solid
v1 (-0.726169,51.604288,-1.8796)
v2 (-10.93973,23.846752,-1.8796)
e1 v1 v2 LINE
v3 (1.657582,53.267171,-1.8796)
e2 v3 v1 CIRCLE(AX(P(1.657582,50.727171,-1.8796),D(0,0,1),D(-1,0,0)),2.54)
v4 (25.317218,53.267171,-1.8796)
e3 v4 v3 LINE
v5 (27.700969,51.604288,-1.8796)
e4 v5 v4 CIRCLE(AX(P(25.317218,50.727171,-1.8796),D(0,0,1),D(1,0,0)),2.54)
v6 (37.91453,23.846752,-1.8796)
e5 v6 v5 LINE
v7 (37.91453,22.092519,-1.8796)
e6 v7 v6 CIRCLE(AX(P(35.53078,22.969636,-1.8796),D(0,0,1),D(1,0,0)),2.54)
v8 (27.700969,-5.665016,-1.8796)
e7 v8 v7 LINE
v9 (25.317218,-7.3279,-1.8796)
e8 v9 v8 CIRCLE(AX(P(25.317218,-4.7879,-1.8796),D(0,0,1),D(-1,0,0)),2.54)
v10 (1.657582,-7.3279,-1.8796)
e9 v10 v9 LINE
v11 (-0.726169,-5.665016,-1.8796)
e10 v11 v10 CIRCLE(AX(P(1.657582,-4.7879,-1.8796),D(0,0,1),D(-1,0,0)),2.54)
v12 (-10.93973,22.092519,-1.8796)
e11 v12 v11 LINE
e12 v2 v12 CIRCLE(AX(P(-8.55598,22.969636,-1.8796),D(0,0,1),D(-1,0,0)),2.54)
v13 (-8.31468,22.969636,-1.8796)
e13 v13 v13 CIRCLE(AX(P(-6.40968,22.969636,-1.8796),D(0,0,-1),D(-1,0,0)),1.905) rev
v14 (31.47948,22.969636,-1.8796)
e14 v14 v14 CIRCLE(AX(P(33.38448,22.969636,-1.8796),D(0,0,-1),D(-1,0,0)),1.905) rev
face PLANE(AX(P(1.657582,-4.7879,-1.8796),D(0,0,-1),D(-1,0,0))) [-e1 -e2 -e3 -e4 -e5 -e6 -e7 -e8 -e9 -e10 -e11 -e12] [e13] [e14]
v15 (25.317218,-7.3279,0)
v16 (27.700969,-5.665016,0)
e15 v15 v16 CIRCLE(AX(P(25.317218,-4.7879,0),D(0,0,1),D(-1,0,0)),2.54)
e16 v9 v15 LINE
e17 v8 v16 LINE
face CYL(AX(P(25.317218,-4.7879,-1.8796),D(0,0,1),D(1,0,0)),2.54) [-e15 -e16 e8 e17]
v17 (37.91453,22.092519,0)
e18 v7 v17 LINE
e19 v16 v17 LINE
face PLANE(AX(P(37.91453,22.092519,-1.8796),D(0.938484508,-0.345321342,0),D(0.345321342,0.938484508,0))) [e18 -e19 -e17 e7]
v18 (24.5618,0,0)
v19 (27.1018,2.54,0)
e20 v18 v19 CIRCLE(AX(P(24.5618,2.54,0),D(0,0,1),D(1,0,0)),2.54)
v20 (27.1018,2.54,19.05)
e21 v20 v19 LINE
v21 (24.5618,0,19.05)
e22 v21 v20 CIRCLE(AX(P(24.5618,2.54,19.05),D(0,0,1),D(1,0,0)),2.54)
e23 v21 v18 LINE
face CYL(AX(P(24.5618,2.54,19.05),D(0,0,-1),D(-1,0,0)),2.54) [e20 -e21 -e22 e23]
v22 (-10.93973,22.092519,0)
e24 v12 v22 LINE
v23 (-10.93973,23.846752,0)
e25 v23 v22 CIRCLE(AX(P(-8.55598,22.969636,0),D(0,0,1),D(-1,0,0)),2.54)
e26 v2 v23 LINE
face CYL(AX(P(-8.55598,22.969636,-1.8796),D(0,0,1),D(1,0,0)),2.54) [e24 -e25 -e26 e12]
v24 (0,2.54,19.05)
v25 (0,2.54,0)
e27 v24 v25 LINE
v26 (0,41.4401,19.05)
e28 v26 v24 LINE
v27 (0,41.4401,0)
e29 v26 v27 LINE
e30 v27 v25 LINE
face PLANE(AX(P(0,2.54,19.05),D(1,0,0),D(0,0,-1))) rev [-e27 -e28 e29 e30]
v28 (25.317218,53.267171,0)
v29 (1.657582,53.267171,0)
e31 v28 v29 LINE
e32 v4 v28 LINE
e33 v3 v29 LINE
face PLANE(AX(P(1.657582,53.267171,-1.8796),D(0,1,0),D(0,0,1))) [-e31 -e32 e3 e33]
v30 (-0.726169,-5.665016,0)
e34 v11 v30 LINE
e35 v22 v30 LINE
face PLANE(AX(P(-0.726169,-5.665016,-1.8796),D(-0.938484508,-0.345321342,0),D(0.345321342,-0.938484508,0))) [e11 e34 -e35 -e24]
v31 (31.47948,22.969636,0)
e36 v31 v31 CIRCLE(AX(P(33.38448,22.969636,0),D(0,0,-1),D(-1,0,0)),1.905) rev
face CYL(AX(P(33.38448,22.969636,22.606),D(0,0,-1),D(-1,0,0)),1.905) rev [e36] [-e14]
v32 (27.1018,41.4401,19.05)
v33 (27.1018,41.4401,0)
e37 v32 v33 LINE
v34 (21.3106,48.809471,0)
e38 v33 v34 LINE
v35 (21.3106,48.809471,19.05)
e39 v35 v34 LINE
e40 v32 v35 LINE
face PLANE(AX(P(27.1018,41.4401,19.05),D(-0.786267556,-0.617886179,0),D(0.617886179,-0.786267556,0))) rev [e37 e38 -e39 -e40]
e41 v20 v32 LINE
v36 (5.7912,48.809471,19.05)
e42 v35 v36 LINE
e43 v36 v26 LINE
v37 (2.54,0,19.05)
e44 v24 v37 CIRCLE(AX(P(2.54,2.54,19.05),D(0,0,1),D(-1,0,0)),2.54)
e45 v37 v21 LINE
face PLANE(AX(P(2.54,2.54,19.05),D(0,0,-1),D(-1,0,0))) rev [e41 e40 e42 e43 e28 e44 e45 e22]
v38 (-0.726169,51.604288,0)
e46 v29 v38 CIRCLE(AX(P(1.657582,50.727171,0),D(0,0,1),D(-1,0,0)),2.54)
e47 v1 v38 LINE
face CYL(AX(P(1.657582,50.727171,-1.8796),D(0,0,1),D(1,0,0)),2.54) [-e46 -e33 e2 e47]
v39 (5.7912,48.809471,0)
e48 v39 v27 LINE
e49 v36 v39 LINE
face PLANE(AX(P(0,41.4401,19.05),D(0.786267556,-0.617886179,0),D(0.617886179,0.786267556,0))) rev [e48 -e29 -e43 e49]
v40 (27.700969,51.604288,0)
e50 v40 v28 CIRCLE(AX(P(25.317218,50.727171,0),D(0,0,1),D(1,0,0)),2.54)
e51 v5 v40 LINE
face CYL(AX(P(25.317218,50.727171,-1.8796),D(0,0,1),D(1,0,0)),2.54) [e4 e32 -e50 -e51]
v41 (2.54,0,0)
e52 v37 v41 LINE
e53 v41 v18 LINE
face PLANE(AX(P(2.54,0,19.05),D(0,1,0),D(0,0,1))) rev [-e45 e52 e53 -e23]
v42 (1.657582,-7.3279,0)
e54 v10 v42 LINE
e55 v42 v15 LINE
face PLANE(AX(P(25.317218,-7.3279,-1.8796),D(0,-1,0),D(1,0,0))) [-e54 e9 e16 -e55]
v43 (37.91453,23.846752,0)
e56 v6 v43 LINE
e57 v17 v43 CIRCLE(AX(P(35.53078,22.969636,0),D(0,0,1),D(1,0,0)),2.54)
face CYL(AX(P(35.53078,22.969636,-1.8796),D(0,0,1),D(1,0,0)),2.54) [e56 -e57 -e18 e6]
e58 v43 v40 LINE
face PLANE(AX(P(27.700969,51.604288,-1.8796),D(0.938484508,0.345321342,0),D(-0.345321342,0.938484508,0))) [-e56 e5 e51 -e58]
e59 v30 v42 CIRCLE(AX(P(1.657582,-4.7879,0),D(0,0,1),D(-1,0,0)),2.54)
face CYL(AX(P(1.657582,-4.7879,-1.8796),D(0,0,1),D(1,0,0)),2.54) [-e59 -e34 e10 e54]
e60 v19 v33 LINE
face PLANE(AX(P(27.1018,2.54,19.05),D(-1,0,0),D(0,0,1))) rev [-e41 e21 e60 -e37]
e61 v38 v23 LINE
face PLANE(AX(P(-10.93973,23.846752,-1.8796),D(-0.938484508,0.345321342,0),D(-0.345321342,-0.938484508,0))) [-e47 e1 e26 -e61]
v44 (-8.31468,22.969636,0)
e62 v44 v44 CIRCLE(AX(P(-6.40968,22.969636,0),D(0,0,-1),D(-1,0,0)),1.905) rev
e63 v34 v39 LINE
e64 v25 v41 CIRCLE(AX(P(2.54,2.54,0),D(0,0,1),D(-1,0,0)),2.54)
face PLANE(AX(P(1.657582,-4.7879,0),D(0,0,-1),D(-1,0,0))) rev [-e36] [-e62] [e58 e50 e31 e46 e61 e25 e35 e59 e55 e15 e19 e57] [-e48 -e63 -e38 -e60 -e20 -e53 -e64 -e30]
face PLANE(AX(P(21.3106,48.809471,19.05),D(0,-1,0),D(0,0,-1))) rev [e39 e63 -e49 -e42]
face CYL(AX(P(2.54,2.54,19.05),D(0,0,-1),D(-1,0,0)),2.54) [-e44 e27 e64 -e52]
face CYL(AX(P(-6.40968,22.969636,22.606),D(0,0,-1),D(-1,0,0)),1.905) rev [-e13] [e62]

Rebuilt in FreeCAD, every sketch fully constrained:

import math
import FreeCAD as App
import Part
import Sketcher
from FreeCAD import Vector
Q = App.Units.Quantity

doc = App.newDocument("Part")
params = doc.addObject("Spreadsheet::Sheet", "Params")
for row, (alias, value) in enumerate([
    ("sketch1_radius", "0.1 in"),
    ("sketch1_width", "0.867 in"),
    ("sketch1_width2", "0.611 in"),
    ("sketch1_length", "0.369 in"),
    ("pad1_length", "0.75 in"),
    ("sketch2_radius", "0.1 in"),
    ("pad2_length", "0.074 in"),
    ("sketch3_diameter", "0.15 in"),
], start=1):
    params.set(f"A{row}", alias)
    params.set(f"B{row}", "=" + value)
    params.setAlias(f"B{row}", alias)

body = doc.addObject("PartDesign::Body", "Body")

# Sketch on XY plane
sketch1 = body.newObject("Sketcher::SketchObject", "Sketch")
sketch1.AttachmentSupport = (doc.getObject("XY_Plane"), [""])
sketch1.MapMode = "FlatFace"
sketch1.addGeometry([
    Part.LineSegment(Vector(2.54, 0, 0), Vector(24.5618, 0, 0)),  # 0
    Part.ArcOfCircle(Part.Circle(Vector(24.5618, 2.54, 0), Vector(0, 0, 1), 2.54), math.radians(-90), math.radians(0)),  # 1
    Part.LineSegment(Vector(27.1018, 2.54, 0), Vector(27.1018, 41.4401, 0)),  # 2
    Part.LineSegment(Vector(27.1018, 41.4401, 0), Vector(21.3106, 48.809471, 0)),  # 3
    Part.LineSegment(Vector(21.3106, 48.809471, 0), Vector(5.7912, 48.809471, 0)),  # 4
    Part.LineSegment(Vector(5.7912, 48.809471, 0), Vector(0, 41.4401, 0)),  # 5
    Part.LineSegment(Vector(0, 41.4401, 0), Vector(0, 2.54, 0)),  # 6
    Part.ArcOfCircle(Part.Circle(Vector(2.54, 2.54, 0), Vector(0, 0, 1), 2.54), math.radians(-180), math.radians(-90)),  # 7
], False)
sketch1.addConstraint([
    Sketcher.Constraint("Tangent", 0, 2, 1, 1),
    Sketcher.Constraint("Tangent", 1, 2, 2, 1),
    Sketcher.Constraint("Coincident", 2, 2, 3, 1),
    Sketcher.Constraint("Coincident", 3, 2, 4, 1),
    Sketcher.Constraint("Coincident", 4, 2, 5, 1),
    Sketcher.Constraint("Coincident", 5, 2, 6, 1),
    Sketcher.Constraint("Tangent", 6, 2, 7, 1),
    Sketcher.Constraint("Tangent", 7, 2, 0, 1),
    Sketcher.Constraint("Horizontal", 0),
    Sketcher.Constraint("Vertical", 2),
    Sketcher.Constraint("Horizontal", 4),
    Sketcher.Constraint("Vertical", 6),
    Sketcher.Constraint("Equal", 1, 7),
    Sketcher.Constraint("PointOnObject", 0, 2, -1),
    Sketcher.Constraint("PointOnObject", 5, 2, -2),
    Sketcher.Constraint("Horizontal", 2, 2, 5, 2),
    Sketcher.Constraint("Equal", 3, 5),
    Sketcher.Constraint("Radius", 1, Q("0.1 in")),
    Sketcher.Constraint("DistanceX", 0, 1, 0, 2, Q("0.867 in")),
    Sketcher.Constraint("DistanceX", 4, 2, 4, 1, Q("0.611 in")),
    Sketcher.Constraint("Distance", 3, Q("0.369 in")),
    Sketcher.Constraint("DistanceY", 2, 1, 2, 2, Q("1.5315 in")),
])
sketch1.setExpression("Constraints[17]", "Params.sketch1_radius")
sketch1.setExpression("Constraints[18]", "Params.sketch1_width")
sketch1.setExpression("Constraints[19]", "Params.sketch1_width2")
sketch1.setExpression("Constraints[20]", "Params.sketch1_length")
pad1 = body.newObject("PartDesign::Pad", "Pad")
pad1.Profile = sketch1
pad1.setExpression("Length", "Params.pad1_length")

# Sketch on XY plane
sketch2 = body.newObject("Sketcher::SketchObject", "Sketch001")
sketch2.AttachmentSupport = (doc.getObject("XY_Plane"), [""])
sketch2.MapMode = "FlatFace"
sketch2.addGeometry([
    Part.LineSegment(Vector(25.317218, 53.267171, 0), Vector(1.657582, 53.267171, 0)),  # 0
    Part.ArcOfCircle(Part.Circle(Vector(1.657582, 50.727171, 0), Vector(0, 0, 1), 2.54), math.radians(90), math.radians(159.798587)),  # 1
    Part.LineSegment(Vector(-0.726169, 51.604288, 0), Vector(-10.93973, 23.846752, 0)),  # 2
    Part.ArcOfCircle(Part.Circle(Vector(-8.55598, 22.969636, 0), Vector(0, 0, 1), 2.54), math.radians(159.798587), math.radians(200.201413)),  # 3
    Part.LineSegment(Vector(-10.93973, 22.092519, 0), Vector(-0.726169, -5.665016, 0)),  # 4
    Part.ArcOfCircle(Part.Circle(Vector(1.657582, -4.7879, 0), Vector(0, 0, 1), 2.54), math.radians(-159.798587), math.radians(-90)),  # 5
    Part.LineSegment(Vector(1.657582, -7.3279, 0), Vector(25.317218, -7.3279, 0)),  # 6
    Part.ArcOfCircle(Part.Circle(Vector(25.317218, -4.7879, 0), Vector(0, 0, 1), 2.54), math.radians(-90), math.radians(-20.201413)),  # 7
    Part.LineSegment(Vector(27.700969, -5.665016, 0), Vector(37.91453, 22.092519, 0)),  # 8
    Part.ArcOfCircle(Part.Circle(Vector(35.53078, 22.969636, 0), Vector(0, 0, 1), 2.54), math.radians(-20.201413), math.radians(20.201413)),  # 9
    Part.LineSegment(Vector(37.91453, 23.846752, 0), Vector(27.700969, 51.604288, 0)),  # 10
    Part.ArcOfCircle(Part.Circle(Vector(25.317218, 50.727171, 0), Vector(0, 0, 1), 2.54), math.radians(20.201413), math.radians(90)),  # 11
], False)
sketch2.addConstraint([
    Sketcher.Constraint("Tangent", 0, 2, 1, 1),
    Sketcher.Constraint("Tangent", 1, 2, 2, 1),
    Sketcher.Constraint("Tangent", 2, 2, 3, 1),
    Sketcher.Constraint("Tangent", 3, 2, 4, 1),
    Sketcher.Constraint("Tangent", 4, 2, 5, 1),
    Sketcher.Constraint("Tangent", 5, 2, 6, 1),
    Sketcher.Constraint("Tangent", 6, 2, 7, 1),
    Sketcher.Constraint("Tangent", 7, 2, 8, 1),
    Sketcher.Constraint("Tangent", 8, 2, 9, 1),
    Sketcher.Constraint("Tangent", 9, 2, 10, 1),
    Sketcher.Constraint("Tangent", 10, 2, 11, 1),
    Sketcher.Constraint("Tangent", 11, 2, 0, 1),
    Sketcher.Constraint("Horizontal", 0),
    Sketcher.Constraint("Horizontal", 6),
    Sketcher.Constraint("Equal", 1, 3),
    Sketcher.Constraint("Equal", 3, 5),
    Sketcher.Constraint("Equal", 5, 7),
    Sketcher.Constraint("Equal", 7, 9),
    Sketcher.Constraint("Equal", 9, 11),
    Sketcher.Constraint("Parallel", 2, 8),
    Sketcher.Constraint("Parallel", 4, 10),
    Sketcher.Constraint("Horizontal", 3, 3, 9, 3),
    Sketcher.Constraint("Horizontal", 4, 2, 7, 2),
    Sketcher.Constraint("Vertical", 1, 3, 5, 3),
    Sketcher.Constraint("Radius", 1, Q("0.1 in")),
    Sketcher.Constraint("DistanceY", 5, 3, -1, 1, Q("0.1885 in")),
    Sketcher.Constraint("Distance", 2, 29.576978),
    Sketcher.Constraint("DistanceX", 0, 2, 0, 1, 23.659636),
    Sketcher.Constraint("DistanceX", -1, 1, 1, 3, 1.657582),
    Sketcher.Constraint("DistanceY", -1, 1, 1, 3, 50.727171),
])
sketch2.setExpression("Constraints[24]", "Params.sketch2_radius")
pad2 = body.newObject("PartDesign::Pad", "Pad001")
pad2.Profile = sketch2
pad2.setExpression("Length", "Params.pad2_length")
pad2.Reversed = True

# Sketch on XY plane
sketch3 = body.newObject("Sketcher::SketchObject", "Sketch002")
sketch3.AttachmentSupport = (doc.getObject("XY_Plane"), [""])
sketch3.MapMode = "FlatFace"
sketch3.addGeometry([
    Part.Circle(Vector(33.38448, 22.969636, 0), Vector(0, 0, 1), 1.905),
    Part.Circle(Vector(-6.40968, 22.969636, 0), Vector(0, 0, 1), 1.905),
], False)
sketch3.addConstraint([
    Sketcher.Constraint("Equal", 0, 1),
    Sketcher.Constraint("Horizontal", 0, 3, 1, 3),
    Sketcher.Constraint("Diameter", 0, Q("0.15 in")),
    Sketcher.Constraint("DistanceX", -1, 1, 0, 3, 33.38448),
    Sketcher.Constraint("DistanceX", 1, 3, -1, 1, 6.40968),
    Sketcher.Constraint("DistanceY", -1, 1, 0, 3, 22.969636),
])
sketch3.setExpression("Constraints[2]", "Params.sketch3_diameter")
pocket1 = body.newObject("PartDesign::Pocket", "Pocket")
pocket1.Profile = sketch3
pocket1.Type = "ThroughAll"
pocket1.Midplane = True

doc.recompute()
